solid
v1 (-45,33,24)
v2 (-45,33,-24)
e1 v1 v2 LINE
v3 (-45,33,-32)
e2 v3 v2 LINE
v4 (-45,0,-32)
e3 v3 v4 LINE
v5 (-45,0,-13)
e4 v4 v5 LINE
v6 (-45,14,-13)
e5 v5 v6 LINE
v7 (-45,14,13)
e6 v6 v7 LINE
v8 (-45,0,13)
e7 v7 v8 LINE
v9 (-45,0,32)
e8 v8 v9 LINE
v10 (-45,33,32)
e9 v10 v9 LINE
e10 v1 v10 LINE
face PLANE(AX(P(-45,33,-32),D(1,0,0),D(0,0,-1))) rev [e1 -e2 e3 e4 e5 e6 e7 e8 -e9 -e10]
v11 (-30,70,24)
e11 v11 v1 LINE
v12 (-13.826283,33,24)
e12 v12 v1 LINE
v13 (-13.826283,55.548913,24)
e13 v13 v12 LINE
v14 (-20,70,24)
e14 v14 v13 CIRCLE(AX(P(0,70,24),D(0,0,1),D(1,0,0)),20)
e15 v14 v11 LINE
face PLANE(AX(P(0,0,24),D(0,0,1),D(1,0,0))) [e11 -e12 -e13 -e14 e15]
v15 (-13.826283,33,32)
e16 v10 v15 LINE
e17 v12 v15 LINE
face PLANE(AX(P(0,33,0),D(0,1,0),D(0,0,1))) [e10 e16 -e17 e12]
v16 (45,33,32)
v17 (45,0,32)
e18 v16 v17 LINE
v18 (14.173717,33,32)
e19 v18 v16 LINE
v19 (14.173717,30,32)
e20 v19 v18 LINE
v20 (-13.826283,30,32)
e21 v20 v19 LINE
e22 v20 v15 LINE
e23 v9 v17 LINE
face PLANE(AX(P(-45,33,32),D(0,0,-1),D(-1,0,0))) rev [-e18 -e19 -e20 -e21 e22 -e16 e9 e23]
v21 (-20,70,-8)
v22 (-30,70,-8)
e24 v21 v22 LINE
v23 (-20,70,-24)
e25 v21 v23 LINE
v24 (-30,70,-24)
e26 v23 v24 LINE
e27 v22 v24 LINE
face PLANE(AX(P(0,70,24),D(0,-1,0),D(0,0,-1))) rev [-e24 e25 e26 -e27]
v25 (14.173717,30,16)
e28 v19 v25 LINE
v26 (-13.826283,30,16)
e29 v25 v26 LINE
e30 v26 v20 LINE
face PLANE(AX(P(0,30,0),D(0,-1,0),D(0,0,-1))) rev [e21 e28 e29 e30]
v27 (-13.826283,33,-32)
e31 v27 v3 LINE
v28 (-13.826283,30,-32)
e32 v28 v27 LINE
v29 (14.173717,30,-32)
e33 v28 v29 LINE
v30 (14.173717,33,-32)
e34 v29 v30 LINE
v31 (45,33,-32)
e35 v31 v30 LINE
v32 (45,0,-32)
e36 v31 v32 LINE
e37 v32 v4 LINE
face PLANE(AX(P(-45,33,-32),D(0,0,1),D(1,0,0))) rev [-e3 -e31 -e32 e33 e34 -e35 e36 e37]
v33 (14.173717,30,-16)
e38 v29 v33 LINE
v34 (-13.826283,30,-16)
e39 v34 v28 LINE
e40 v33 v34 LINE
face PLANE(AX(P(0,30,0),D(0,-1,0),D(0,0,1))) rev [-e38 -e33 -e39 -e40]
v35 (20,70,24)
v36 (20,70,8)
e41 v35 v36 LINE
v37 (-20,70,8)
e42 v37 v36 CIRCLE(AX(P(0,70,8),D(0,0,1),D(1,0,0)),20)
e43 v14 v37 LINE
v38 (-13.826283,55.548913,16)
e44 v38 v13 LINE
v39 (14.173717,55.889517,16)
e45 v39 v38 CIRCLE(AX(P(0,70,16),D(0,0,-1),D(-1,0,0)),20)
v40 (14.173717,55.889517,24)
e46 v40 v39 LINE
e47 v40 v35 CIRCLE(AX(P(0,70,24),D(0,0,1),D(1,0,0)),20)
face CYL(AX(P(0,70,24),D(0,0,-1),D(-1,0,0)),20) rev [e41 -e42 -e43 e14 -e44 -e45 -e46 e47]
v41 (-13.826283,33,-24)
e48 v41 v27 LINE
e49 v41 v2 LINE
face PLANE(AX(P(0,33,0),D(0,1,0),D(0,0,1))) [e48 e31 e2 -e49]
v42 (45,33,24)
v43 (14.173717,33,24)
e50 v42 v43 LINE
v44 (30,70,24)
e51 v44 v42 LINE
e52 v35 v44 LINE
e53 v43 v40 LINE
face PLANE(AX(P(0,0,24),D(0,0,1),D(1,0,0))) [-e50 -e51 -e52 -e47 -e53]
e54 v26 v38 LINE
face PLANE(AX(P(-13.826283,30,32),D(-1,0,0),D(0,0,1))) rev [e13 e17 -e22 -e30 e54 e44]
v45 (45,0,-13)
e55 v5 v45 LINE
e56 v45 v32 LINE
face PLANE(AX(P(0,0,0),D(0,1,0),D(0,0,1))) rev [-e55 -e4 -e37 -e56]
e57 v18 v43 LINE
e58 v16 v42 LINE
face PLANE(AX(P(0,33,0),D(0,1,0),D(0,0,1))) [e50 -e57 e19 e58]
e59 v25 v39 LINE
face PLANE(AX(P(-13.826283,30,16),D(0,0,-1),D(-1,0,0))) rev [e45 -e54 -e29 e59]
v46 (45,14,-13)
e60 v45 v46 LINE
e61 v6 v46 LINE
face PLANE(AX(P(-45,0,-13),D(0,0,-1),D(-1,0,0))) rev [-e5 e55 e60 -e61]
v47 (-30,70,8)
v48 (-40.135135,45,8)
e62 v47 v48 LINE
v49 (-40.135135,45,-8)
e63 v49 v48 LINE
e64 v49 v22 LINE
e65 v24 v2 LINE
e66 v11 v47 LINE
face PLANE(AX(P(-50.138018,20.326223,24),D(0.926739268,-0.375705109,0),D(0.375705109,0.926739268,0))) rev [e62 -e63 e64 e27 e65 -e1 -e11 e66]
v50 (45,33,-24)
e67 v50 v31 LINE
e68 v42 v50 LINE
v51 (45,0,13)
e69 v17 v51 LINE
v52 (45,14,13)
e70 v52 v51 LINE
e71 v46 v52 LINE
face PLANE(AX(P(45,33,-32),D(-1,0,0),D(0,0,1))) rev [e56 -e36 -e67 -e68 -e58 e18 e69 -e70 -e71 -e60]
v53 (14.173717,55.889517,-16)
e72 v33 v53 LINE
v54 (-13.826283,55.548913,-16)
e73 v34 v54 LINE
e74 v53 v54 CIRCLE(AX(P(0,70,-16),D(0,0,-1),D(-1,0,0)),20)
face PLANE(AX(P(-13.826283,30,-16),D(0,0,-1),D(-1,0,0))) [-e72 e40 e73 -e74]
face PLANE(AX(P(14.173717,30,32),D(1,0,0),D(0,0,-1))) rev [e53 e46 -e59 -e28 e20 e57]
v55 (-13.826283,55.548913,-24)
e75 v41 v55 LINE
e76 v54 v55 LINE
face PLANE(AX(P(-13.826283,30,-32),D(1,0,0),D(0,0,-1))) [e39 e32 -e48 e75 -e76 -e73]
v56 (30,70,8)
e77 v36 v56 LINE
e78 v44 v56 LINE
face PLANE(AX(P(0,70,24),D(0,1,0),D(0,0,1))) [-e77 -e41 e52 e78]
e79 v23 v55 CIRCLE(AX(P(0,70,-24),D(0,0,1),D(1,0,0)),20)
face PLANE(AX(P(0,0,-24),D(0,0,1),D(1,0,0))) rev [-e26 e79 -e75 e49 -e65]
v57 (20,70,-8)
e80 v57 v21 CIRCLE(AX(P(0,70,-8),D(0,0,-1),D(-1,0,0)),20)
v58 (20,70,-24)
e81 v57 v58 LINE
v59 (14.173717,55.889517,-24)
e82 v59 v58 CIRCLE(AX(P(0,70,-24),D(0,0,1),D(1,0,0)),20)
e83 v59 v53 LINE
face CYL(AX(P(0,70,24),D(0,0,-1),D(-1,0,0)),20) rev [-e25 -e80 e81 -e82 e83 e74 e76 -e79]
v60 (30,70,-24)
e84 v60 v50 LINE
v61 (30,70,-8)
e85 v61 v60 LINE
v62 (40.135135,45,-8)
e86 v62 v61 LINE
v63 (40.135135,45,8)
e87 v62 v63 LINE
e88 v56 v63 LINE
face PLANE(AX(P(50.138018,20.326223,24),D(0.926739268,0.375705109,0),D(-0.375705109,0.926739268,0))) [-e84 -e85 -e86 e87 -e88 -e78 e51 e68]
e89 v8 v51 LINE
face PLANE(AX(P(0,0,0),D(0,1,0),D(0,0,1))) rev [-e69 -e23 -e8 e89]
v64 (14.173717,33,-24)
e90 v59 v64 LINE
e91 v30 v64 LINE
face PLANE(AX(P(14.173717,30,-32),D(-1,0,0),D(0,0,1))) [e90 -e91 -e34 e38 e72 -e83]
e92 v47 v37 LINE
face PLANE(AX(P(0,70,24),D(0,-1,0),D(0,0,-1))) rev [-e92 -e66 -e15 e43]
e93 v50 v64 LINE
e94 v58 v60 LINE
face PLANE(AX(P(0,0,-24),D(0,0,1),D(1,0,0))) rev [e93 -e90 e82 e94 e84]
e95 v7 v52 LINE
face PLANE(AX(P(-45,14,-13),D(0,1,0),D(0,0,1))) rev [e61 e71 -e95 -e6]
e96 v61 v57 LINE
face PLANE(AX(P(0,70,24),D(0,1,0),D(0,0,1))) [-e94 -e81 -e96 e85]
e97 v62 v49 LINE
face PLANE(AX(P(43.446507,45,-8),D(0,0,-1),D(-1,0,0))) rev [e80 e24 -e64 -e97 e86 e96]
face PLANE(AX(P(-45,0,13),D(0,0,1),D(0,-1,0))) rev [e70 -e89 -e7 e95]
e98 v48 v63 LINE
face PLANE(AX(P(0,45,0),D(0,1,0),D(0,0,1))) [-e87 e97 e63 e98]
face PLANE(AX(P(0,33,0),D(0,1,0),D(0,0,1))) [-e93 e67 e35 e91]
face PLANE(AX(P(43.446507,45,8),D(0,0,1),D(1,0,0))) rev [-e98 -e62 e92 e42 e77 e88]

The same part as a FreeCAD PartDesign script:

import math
import FreeCAD as App
import Part
import Sketcher
from FreeCAD import Vector

doc = App.newDocument("Part")
body = doc.addObject("PartDesign::Body", "Body")

sketch1 = body.newObject("Sketcher::SketchObject", "Sketch")
sketch1.AttachmentSupport = (doc.getObject("XZ_Plane"), [""])
sketch1.MapMode = "FlatFace"
sketch1.addGeometry([
    Part.LineSegment(Vector(-45, -32, 0), Vector(-45, 32, 0)),
    Part.LineSegment(Vector(-45, 32, 0), Vector(45, 32, 0)),
    Part.LineSegment(Vector(45, 32, 0), Vector(45, -32, 0)),
    Part.LineSegment(Vector(45, -32, 0), Vector(-45, -32, 0)),
], False)
sketch1.addConstraint([
    Sketcher.Constraint("Coincident", 0, 2, 1, 1),
    Sketcher.Constraint("Coincident", 1, 2, 2, 1),
    Sketcher.Constraint("Coincident", 2, 2, 3, 1),
    Sketcher.Constraint("Coincident", 3, 2, 0, 1),
    Sketcher.Constraint("Vertical", 0),
    Sketcher.Constraint("Horizontal", 1),
    Sketcher.Constraint("Vertical", 2),
    Sketcher.Constraint("Horizontal", 3),
    Sketcher.Constraint("Symmetric", 0, 2, 2, 2, -1, 1),
    Sketcher.Constraint("DistanceX", 1, 1, 1, 2, 90.0),
    Sketcher.Constraint("DistanceY", 0, 1, 0, 2, 64.0),
])
pad1 = body.newObject("PartDesign::Pad", "Pad")
pad1.Profile = sketch1
pad1.Length = 33
pad1.Reversed = True

sketch2 = body.newObject("Sketcher::SketchObject", "Sketch001")
sketch2.AttachmentSupport = (doc.getObject("YZ_Plane"), [""])
sketch2.MapMode = "FlatFace"
sketch2.AttachmentOffset = App.Placement(Vector(0, 0, 45), App.Rotation())
sketch2.addGeometry([
    Part.LineSegment(Vector(14, 13, 0), Vector(0, 13, 0)),
    Part.LineSegment(Vector(0, 13, 0), Vector(0, -13, 0)),
    Part.LineSegment(Vector(0, -13, 0), Vector(14, -13, 0)),
    Part.LineSegment(Vector(14, -13, 0), Vector(14, 13, 0)),
], False)
sketch2.addConstraint([
    Sketcher.Constraint("Coincident", 0, 2, 1, 1),
    Sketcher.Constraint("Coincident", 1, 2, 2, 1),
    Sketcher.Constraint("Coincident", 2, 2, 3, 1),
    Sketcher.Constraint("Coincident", 3, 2, 0, 1),
    Sketcher.Constraint("Horizontal", 0),
    Sketcher.Constraint("Vertical", 1),
    Sketcher.Constraint("Horizontal", 2),
    Sketcher.Constraint("Vertical", 3),
    Sketcher.Constraint("Symmetric", 0, 2, 1, 2, -1, 1),
    Sketcher.Constraint("DistanceX", 0, 2, 0, 1, 14.0),
    Sketcher.Constraint("DistanceY", 1, 2, 1, 1, 26.0),
])
pocket1 = body.newObject("PartDesign::Pocket", "Pocket")
pocket1.Profile = sketch2
pocket1.Type = "ThroughAll"

sketch3 = body.newObject("Sketcher::SketchObject", "Sketch002")
sketch3.AttachmentSupport = (doc.getObject("XY_Plane"), [""])
sketch3.MapMode = "FlatFace"
sketch3.addGeometry([
    Part.LineSegment(Vector(0, 50, 0), Vector(0, 33, 0)),
    Part.LineSegment(Vector(0, 33, 0), Vector(45, 33, 0)),
    Part.LineSegment(Vector(45, 33, 0), Vector(30, 70, 0)),
    Part.LineSegment(Vector(30, 70, 0), Vector(20, 70, 0)),
    Part.ArcOfCircle(Part.Circle(Vector(0, 70, 0), Vector(0, 0, 1), 20), math.radians(-90), math.radians(0)),
], False)
sketch3.addConstraint([
    Sketcher.Constraint("Coincident", 0, 2, 1, 1),
    Sketcher.Constraint("Coincident", 1, 2, 2, 1),
    Sketcher.Constraint("Coincident", 2, 2, 3, 1),
    Sketcher.Constraint("Coincident", 3, 2, 4, 2),
    Sketcher.Constraint("Coincident", 4, 1, 0, 1),
    Sketcher.Constraint("Vertical", 0),
    Sketcher.Constraint("Horizontal", 1),
    Sketcher.Constraint("Horizontal", 3),
    Sketcher.Constraint("PointOnObject", 4, 3, -2),
    Sketcher.Constraint("PointOnObject", 0, 2, -2),
    Sketcher.Constraint("Horizontal", 4, 3, 2, 2),
    Sketcher.Constraint("Radius", 4, 20.0),
    Sketcher.Constraint("DistanceX", 1, 1, 1, 2, 45.0),
    Sketcher.Constraint("DistanceX", 3, 2, 3, 1, 10.0),
    Sketcher.Constraint("DistanceY", 0, 2, 0, 1, 17.0),
    Sketcher.Constraint("DistanceY", -1, 1, 4, 3, 70.0),
])
pad2 = body.newObject("PartDesign::Pad", "Pad001")
pad2.Profile = sketch3
pad2.Length = 48
pad2.Midplane = True
doc.recompute()

mirrored = body.newObject("PartDesign::Mirrored", "Mirrored")
mirrored.Originals = [pad2]
mirrored.MirrorPlane = (doc.getObject("YZ_Plane"), [""])
body.Tip = mirrored

sketch4 = body.newObject("Sketcher::SketchObject", "Sketch003")
sketch4.AttachmentSupport = (doc.getObject("XZ_Plane"), [""])
sketch4.MapMode = "FlatFace"
sketch4.AttachmentOffset = App.Placement(Vector(0, 0, -70), App.Rotation())
sketch4.addGeometry([
    Part.LineSegment(Vector(-43, -8, 0), Vector(-43, 8, 0)),
    Part.LineSegment(Vector(-43, 8, 0), Vector(43, 8, 0)),
    Part.LineSegment(Vector(43, 8, 0), Vector(43, -8, 0)),
    Part.LineSegment(Vector(43, -8, 0), Vector(-43, -8, 0)),
], False)
sketch4.addConstraint([
    Sketcher.Constraint("Coincident", 0, 2, 1, 1),
    Sketcher.Constraint("Coincident", 1, 2, 2, 1),
    Sketcher.Constraint("Coincident", 2, 2, 3, 1),
    Sketcher.Constraint("Coincident", 3, 2, 0, 1),
    Sketcher.Constraint("Vertical", 0),
    Sketcher.Constraint("Horizontal", 1),
    Sketcher.Constraint("Vertical", 2),
    Sketcher.Constraint("Horizontal", 3),
    Sketcher.Constraint("Symmetric", 0, 2, 2, 2, -1, 1),
    Sketcher.Constraint("DistanceY", 0, 1, 0, 2, 16.0),
    Sketcher.Constraint("DistanceX", 1, 1, 1, 2, 86.893013),
])
pocket2 = body.newObject("PartDesign::Pocket", "Pocket001")
pocket2.Profile = sketch4
pocket2.Length = 25
pocket2.Reversed = True

sketch5 = body.newObject("Sketcher::SketchObject", "Sketch004")
sketch5.AttachmentSupport = (doc.getObject("XZ_Plane"), [""])
sketch5.MapMode = "FlatFace"
sketch5.AttachmentOffset = App.Placement(Vector(0, 0, -70), App.Rotation())
sketch5.addGeometry([
    Part.LineSegment(Vector(-14, 16, 0), Vector(-14, 32, 0)),
    Part.LineSegment(Vector(-14, 32, 0), Vector(14, 32, 0)),
    Part.LineSegment(Vector(14, 32, 0), Vector(14, 16, 0)),
    Part.LineSegment(Vector(14, 16, 0), Vector(-14, 16, 0)),
], False)
sketch5.addConstraint([
    Sketcher.Constraint("Coincident", 0, 2, 1, 1),
    Sketcher.Constraint("Coincident", 1, 2, 2, 1),
    Sketcher.Constraint("Coincident", 2, 2, 3, 1),
    Sketcher.Constraint("Coincident", 3, 2, 0, 1),
    Sketcher.Constraint("Vertical", 0),
    Sketcher.Constraint("Horizontal", 1),
    Sketcher.Constraint("Vertical", 2),
    Sketcher.Constraint("Horizontal", 3),
    Sketcher.Constraint("DistanceX", 1, 1, 1, 2, 28.0),
    Sketcher.Constraint("DistanceY", 0, 1, 0, 2, 16.0),
    Sketcher.Constraint("DistanceY", -1, 1, 0, 2, 32.0),
    Sketcher.Constraint("DistanceX", 0, 2, -1, 1, 13.826283),
])
pocket3 = body.newObject("PartDesign::Pocket", "Pocket002")
pocket3.Profile = sketch5
pocket3.Length = 40
pocket3.Reversed = True
doc.recompute()

mirrored2 = body.newObject("PartDesign::Mirrored", "Mirrored001")
mirrored2.Originals = [pocket3]
mirrored2.MirrorPlane = (doc.getObject("XY_Plane"), [""])
body.Tip = mirrored2

doc.recompute()
